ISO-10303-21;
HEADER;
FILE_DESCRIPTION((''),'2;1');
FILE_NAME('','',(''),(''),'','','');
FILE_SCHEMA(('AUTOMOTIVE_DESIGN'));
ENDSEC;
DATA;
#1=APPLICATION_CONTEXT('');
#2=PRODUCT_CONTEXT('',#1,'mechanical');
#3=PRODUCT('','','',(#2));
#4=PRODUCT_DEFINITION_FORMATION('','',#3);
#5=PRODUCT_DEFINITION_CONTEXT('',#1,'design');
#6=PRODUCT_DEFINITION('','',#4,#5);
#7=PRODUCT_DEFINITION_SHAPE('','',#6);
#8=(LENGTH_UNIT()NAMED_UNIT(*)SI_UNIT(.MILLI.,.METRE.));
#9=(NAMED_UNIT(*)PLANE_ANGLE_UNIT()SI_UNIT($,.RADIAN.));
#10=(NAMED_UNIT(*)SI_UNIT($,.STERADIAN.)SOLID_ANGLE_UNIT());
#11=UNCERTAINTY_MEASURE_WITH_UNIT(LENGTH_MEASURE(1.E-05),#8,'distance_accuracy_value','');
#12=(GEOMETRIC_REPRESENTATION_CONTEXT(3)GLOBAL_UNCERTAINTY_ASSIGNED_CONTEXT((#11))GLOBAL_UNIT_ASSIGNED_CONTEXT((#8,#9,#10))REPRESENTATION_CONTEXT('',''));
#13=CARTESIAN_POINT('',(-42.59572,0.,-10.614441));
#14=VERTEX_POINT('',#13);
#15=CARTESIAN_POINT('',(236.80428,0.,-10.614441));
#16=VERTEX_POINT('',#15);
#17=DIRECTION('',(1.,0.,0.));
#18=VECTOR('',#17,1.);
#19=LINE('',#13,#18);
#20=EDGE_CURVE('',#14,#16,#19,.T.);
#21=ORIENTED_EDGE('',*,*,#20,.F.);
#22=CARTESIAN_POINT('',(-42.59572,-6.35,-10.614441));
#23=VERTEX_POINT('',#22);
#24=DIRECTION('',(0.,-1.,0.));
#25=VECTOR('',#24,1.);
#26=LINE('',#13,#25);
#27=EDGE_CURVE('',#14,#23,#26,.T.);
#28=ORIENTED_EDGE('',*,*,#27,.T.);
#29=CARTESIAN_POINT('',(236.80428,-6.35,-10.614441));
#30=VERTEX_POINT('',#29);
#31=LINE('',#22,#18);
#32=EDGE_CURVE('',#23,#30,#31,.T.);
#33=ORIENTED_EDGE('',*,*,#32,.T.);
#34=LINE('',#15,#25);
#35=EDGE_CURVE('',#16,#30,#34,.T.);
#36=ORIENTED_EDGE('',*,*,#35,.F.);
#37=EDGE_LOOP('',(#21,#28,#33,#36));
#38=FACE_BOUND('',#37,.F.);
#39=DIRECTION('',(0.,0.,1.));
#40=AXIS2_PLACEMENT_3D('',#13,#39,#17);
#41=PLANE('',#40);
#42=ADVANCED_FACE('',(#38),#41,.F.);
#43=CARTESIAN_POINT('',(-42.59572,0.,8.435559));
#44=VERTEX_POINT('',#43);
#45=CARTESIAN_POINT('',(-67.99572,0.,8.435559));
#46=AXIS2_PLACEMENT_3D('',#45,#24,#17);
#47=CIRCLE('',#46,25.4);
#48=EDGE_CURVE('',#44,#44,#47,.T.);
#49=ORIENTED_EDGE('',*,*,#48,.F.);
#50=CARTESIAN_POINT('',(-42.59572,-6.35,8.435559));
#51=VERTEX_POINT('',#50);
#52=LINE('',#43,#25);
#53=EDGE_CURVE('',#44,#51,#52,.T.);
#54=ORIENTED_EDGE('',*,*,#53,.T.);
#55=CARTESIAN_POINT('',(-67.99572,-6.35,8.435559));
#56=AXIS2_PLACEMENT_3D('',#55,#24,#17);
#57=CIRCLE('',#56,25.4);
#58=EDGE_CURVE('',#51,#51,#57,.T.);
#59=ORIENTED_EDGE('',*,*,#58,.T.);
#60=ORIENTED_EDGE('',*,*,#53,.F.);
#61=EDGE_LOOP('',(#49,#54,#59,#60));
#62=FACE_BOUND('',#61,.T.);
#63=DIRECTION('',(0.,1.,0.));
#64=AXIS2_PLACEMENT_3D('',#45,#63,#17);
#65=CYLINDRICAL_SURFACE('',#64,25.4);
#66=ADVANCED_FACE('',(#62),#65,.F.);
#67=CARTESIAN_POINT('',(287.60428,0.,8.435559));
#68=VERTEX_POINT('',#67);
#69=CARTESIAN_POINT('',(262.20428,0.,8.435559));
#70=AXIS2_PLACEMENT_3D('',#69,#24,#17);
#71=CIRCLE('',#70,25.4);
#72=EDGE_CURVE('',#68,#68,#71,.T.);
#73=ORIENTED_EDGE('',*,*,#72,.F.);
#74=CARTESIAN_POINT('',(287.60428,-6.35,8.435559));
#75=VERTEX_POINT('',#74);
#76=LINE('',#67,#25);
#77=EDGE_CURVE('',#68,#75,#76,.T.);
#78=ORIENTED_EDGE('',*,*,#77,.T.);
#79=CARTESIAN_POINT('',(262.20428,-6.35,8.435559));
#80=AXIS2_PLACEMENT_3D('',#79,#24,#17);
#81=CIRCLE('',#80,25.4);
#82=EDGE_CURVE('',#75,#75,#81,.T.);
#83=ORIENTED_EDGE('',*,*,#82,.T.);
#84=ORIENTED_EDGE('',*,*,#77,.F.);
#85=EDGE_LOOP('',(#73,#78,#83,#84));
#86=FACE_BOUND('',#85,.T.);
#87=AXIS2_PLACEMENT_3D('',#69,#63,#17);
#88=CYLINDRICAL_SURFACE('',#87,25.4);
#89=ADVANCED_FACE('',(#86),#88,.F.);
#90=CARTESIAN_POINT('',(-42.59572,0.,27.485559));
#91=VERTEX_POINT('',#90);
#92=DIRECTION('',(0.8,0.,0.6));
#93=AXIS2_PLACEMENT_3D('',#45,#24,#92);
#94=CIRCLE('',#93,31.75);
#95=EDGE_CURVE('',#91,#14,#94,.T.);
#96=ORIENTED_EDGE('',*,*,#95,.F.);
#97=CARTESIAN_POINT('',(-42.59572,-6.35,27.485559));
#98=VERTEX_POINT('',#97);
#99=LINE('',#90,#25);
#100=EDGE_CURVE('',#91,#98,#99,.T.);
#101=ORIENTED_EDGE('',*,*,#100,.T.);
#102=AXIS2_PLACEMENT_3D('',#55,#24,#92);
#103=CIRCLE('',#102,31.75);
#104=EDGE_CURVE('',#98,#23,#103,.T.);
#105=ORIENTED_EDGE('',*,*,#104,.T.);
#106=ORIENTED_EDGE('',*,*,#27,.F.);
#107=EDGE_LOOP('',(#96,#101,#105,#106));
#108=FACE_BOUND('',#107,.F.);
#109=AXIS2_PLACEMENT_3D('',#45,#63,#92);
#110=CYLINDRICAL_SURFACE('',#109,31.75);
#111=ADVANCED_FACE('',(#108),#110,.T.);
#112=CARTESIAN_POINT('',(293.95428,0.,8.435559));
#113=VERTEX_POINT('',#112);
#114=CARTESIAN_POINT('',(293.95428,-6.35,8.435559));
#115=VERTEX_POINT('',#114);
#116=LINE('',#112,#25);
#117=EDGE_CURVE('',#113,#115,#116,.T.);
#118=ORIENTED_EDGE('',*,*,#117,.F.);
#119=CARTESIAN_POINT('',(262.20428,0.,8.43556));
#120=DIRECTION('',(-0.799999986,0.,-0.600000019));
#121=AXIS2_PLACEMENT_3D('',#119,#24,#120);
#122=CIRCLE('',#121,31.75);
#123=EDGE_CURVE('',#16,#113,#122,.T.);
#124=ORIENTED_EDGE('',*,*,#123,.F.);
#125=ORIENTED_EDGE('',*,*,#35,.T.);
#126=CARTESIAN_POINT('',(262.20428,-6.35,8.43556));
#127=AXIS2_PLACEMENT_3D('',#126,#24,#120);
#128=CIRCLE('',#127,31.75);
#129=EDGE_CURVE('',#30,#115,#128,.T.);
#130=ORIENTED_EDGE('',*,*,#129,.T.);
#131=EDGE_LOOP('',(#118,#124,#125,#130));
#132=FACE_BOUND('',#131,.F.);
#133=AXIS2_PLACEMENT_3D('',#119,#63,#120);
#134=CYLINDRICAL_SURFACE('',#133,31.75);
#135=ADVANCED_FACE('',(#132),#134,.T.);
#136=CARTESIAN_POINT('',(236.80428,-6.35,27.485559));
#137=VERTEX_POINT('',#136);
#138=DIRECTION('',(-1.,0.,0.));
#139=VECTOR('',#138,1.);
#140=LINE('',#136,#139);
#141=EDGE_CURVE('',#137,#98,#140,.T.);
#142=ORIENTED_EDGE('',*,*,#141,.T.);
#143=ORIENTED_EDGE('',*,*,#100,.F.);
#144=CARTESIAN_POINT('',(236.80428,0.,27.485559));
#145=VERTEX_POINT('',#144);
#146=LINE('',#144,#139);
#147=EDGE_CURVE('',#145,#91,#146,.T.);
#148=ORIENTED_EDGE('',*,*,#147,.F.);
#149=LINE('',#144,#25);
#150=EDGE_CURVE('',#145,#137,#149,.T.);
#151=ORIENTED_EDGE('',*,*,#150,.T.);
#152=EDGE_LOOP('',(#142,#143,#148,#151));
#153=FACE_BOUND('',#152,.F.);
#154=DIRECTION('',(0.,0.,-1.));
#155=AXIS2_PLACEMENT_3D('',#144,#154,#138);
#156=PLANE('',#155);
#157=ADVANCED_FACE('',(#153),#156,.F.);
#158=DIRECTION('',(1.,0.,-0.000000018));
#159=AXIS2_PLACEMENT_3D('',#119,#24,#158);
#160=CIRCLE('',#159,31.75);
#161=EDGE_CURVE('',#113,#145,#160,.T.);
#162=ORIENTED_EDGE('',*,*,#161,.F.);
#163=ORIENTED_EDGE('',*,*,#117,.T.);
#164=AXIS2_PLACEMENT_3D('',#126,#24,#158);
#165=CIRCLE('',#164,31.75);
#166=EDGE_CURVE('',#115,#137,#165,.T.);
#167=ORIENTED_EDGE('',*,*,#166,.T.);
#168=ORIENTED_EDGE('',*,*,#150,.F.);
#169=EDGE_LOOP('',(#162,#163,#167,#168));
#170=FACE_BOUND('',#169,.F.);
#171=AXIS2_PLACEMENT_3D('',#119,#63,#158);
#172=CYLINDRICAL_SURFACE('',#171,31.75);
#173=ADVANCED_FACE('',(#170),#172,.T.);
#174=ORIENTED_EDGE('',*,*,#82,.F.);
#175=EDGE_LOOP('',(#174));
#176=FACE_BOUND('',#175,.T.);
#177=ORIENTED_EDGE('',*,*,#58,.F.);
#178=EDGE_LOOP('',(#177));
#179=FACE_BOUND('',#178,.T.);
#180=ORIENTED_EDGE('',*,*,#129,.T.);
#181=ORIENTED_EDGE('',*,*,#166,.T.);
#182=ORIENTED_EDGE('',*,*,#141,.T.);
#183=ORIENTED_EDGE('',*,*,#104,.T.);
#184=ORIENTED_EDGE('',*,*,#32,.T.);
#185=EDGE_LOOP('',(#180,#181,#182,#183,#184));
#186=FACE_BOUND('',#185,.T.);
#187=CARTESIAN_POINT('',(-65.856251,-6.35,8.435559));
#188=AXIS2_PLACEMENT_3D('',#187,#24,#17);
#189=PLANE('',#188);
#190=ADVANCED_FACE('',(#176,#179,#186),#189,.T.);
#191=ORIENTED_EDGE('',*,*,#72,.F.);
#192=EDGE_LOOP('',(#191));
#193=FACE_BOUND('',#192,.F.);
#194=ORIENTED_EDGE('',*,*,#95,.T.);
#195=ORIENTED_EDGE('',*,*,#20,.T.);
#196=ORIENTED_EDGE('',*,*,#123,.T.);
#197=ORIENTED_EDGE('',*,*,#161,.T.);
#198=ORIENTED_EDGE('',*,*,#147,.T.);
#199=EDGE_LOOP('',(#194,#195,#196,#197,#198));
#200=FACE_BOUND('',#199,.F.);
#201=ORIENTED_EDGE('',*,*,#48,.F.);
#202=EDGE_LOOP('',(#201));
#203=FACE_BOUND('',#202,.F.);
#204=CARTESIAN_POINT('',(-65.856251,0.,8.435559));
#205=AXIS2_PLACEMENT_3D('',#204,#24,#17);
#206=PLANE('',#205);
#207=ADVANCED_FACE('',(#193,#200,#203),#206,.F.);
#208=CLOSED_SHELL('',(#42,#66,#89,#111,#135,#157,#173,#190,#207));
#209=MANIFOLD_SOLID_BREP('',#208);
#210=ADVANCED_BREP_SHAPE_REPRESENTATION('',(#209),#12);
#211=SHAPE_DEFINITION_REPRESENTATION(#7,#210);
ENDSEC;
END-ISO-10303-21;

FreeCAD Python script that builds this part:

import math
import FreeCAD as App
import Part
import Sketcher
from FreeCAD import Vector
Q = App.Units.Quantity

doc = App.newDocument("Part")
body = doc.addObject("PartDesign::Body", "Body")

# Sketch on XZ plane
sketch1 = body.newObject("Sketcher::SketchObject", "Sketch")
sketch1.AttachmentSupport = (doc.getObject("XZ_Plane"), [""])
sketch1.MapMode = "FlatFace"
sketch1.addGeometry([
    Part.ArcOfCircle(Part.Circle(Vector(-67.99572, 8.435559, 0), Vector(0, 0, 1), 31.75), math.radians(36.869898), math.radians(323.130102)),  # 0
    Part.LineSegment(Vector(-42.59572, -10.614441, 0), Vector(236.80428, -10.614441, 0)),  # 1
    Part.ArcOfCircle(Part.Circle(Vector(262.20428, 8.43556, 0), Vector(0, 0, 1), 31.75), math.radians(-143.130101), math.radians(-0.000001)),  # 2
    Part.ArcOfCircle(Part.Circle(Vector(262.20428, 8.43556, 0), Vector(0, 0, 1), 31.75), math.radians(-0.000001), math.radians(143.130103)),  # 3
    Part.LineSegment(Vector(236.80428, 27.485559, 0), Vector(-42.59572, 27.485559, 0)),  # 4
    Part.Circle(Vector(-67.99572, 8.435559, 0), Vector(0, 0, 1), 25.4),  # 5
    Part.Circle(Vector(262.20428, 8.435559, 0), Vector(0, 0, 1), 25.4),  # 6
], False)
sketch1.addConstraint([
    Sketcher.Constraint("Coincident", 0, 2, 1, 1),
    Sketcher.Constraint("Coincident", 1, 2, 2, 1),
    Sketcher.Constraint("Tangent", 2, 2, 3, 1),
    Sketcher.Constraint("Coincident", 3, 2, 4, 1),
    Sketcher.Constraint("Coincident", 4, 2, 0, 1),
    Sketcher.Constraint("Horizontal", 1),
    Sketcher.Constraint("Horizontal", 4),
    Sketcher.Constraint("Coincident", 5, 3, 0, 3),
    Sketcher.Constraint("Coincident", 6, 3, 2, 3),
    Sketcher.Constraint("Equal", 0, 2),
    Sketcher.Constraint("Equal", 2, 3),
    Sketcher.Constraint("Equal", 5, 6),
    Sketcher.Constraint("Horizontal", 0, 3, 2, 3),
    Sketcher.Constraint("Horizontal", 6, 3, 2, 2),
    Sketcher.Constraint("Vertical", 1, 2, 3, 2),
    Sketcher.Constraint("Diameter", 5, Q("2 in")),
    Sketcher.Constraint("DistanceX", 1, 1, 1, 2, Q("11 in")),
    Sketcher.Constraint("Radius", 0, Q("1.25 in")),
    Sketcher.Constraint("DistanceX", 0, 3, 2, 3, Q("13 in")),
    Sketcher.Constraint("DistanceX", 0, 3, -1, 1, 67.99572),
    Sketcher.Constraint("DistanceY", -1, 1, 0, 3, 8.435559),
])
pad1 = body.newObject("PartDesign::Pad", "Pad")
pad1.Profile = sketch1
pad1.Length = Q("0.25 in")

doc.recompute()
